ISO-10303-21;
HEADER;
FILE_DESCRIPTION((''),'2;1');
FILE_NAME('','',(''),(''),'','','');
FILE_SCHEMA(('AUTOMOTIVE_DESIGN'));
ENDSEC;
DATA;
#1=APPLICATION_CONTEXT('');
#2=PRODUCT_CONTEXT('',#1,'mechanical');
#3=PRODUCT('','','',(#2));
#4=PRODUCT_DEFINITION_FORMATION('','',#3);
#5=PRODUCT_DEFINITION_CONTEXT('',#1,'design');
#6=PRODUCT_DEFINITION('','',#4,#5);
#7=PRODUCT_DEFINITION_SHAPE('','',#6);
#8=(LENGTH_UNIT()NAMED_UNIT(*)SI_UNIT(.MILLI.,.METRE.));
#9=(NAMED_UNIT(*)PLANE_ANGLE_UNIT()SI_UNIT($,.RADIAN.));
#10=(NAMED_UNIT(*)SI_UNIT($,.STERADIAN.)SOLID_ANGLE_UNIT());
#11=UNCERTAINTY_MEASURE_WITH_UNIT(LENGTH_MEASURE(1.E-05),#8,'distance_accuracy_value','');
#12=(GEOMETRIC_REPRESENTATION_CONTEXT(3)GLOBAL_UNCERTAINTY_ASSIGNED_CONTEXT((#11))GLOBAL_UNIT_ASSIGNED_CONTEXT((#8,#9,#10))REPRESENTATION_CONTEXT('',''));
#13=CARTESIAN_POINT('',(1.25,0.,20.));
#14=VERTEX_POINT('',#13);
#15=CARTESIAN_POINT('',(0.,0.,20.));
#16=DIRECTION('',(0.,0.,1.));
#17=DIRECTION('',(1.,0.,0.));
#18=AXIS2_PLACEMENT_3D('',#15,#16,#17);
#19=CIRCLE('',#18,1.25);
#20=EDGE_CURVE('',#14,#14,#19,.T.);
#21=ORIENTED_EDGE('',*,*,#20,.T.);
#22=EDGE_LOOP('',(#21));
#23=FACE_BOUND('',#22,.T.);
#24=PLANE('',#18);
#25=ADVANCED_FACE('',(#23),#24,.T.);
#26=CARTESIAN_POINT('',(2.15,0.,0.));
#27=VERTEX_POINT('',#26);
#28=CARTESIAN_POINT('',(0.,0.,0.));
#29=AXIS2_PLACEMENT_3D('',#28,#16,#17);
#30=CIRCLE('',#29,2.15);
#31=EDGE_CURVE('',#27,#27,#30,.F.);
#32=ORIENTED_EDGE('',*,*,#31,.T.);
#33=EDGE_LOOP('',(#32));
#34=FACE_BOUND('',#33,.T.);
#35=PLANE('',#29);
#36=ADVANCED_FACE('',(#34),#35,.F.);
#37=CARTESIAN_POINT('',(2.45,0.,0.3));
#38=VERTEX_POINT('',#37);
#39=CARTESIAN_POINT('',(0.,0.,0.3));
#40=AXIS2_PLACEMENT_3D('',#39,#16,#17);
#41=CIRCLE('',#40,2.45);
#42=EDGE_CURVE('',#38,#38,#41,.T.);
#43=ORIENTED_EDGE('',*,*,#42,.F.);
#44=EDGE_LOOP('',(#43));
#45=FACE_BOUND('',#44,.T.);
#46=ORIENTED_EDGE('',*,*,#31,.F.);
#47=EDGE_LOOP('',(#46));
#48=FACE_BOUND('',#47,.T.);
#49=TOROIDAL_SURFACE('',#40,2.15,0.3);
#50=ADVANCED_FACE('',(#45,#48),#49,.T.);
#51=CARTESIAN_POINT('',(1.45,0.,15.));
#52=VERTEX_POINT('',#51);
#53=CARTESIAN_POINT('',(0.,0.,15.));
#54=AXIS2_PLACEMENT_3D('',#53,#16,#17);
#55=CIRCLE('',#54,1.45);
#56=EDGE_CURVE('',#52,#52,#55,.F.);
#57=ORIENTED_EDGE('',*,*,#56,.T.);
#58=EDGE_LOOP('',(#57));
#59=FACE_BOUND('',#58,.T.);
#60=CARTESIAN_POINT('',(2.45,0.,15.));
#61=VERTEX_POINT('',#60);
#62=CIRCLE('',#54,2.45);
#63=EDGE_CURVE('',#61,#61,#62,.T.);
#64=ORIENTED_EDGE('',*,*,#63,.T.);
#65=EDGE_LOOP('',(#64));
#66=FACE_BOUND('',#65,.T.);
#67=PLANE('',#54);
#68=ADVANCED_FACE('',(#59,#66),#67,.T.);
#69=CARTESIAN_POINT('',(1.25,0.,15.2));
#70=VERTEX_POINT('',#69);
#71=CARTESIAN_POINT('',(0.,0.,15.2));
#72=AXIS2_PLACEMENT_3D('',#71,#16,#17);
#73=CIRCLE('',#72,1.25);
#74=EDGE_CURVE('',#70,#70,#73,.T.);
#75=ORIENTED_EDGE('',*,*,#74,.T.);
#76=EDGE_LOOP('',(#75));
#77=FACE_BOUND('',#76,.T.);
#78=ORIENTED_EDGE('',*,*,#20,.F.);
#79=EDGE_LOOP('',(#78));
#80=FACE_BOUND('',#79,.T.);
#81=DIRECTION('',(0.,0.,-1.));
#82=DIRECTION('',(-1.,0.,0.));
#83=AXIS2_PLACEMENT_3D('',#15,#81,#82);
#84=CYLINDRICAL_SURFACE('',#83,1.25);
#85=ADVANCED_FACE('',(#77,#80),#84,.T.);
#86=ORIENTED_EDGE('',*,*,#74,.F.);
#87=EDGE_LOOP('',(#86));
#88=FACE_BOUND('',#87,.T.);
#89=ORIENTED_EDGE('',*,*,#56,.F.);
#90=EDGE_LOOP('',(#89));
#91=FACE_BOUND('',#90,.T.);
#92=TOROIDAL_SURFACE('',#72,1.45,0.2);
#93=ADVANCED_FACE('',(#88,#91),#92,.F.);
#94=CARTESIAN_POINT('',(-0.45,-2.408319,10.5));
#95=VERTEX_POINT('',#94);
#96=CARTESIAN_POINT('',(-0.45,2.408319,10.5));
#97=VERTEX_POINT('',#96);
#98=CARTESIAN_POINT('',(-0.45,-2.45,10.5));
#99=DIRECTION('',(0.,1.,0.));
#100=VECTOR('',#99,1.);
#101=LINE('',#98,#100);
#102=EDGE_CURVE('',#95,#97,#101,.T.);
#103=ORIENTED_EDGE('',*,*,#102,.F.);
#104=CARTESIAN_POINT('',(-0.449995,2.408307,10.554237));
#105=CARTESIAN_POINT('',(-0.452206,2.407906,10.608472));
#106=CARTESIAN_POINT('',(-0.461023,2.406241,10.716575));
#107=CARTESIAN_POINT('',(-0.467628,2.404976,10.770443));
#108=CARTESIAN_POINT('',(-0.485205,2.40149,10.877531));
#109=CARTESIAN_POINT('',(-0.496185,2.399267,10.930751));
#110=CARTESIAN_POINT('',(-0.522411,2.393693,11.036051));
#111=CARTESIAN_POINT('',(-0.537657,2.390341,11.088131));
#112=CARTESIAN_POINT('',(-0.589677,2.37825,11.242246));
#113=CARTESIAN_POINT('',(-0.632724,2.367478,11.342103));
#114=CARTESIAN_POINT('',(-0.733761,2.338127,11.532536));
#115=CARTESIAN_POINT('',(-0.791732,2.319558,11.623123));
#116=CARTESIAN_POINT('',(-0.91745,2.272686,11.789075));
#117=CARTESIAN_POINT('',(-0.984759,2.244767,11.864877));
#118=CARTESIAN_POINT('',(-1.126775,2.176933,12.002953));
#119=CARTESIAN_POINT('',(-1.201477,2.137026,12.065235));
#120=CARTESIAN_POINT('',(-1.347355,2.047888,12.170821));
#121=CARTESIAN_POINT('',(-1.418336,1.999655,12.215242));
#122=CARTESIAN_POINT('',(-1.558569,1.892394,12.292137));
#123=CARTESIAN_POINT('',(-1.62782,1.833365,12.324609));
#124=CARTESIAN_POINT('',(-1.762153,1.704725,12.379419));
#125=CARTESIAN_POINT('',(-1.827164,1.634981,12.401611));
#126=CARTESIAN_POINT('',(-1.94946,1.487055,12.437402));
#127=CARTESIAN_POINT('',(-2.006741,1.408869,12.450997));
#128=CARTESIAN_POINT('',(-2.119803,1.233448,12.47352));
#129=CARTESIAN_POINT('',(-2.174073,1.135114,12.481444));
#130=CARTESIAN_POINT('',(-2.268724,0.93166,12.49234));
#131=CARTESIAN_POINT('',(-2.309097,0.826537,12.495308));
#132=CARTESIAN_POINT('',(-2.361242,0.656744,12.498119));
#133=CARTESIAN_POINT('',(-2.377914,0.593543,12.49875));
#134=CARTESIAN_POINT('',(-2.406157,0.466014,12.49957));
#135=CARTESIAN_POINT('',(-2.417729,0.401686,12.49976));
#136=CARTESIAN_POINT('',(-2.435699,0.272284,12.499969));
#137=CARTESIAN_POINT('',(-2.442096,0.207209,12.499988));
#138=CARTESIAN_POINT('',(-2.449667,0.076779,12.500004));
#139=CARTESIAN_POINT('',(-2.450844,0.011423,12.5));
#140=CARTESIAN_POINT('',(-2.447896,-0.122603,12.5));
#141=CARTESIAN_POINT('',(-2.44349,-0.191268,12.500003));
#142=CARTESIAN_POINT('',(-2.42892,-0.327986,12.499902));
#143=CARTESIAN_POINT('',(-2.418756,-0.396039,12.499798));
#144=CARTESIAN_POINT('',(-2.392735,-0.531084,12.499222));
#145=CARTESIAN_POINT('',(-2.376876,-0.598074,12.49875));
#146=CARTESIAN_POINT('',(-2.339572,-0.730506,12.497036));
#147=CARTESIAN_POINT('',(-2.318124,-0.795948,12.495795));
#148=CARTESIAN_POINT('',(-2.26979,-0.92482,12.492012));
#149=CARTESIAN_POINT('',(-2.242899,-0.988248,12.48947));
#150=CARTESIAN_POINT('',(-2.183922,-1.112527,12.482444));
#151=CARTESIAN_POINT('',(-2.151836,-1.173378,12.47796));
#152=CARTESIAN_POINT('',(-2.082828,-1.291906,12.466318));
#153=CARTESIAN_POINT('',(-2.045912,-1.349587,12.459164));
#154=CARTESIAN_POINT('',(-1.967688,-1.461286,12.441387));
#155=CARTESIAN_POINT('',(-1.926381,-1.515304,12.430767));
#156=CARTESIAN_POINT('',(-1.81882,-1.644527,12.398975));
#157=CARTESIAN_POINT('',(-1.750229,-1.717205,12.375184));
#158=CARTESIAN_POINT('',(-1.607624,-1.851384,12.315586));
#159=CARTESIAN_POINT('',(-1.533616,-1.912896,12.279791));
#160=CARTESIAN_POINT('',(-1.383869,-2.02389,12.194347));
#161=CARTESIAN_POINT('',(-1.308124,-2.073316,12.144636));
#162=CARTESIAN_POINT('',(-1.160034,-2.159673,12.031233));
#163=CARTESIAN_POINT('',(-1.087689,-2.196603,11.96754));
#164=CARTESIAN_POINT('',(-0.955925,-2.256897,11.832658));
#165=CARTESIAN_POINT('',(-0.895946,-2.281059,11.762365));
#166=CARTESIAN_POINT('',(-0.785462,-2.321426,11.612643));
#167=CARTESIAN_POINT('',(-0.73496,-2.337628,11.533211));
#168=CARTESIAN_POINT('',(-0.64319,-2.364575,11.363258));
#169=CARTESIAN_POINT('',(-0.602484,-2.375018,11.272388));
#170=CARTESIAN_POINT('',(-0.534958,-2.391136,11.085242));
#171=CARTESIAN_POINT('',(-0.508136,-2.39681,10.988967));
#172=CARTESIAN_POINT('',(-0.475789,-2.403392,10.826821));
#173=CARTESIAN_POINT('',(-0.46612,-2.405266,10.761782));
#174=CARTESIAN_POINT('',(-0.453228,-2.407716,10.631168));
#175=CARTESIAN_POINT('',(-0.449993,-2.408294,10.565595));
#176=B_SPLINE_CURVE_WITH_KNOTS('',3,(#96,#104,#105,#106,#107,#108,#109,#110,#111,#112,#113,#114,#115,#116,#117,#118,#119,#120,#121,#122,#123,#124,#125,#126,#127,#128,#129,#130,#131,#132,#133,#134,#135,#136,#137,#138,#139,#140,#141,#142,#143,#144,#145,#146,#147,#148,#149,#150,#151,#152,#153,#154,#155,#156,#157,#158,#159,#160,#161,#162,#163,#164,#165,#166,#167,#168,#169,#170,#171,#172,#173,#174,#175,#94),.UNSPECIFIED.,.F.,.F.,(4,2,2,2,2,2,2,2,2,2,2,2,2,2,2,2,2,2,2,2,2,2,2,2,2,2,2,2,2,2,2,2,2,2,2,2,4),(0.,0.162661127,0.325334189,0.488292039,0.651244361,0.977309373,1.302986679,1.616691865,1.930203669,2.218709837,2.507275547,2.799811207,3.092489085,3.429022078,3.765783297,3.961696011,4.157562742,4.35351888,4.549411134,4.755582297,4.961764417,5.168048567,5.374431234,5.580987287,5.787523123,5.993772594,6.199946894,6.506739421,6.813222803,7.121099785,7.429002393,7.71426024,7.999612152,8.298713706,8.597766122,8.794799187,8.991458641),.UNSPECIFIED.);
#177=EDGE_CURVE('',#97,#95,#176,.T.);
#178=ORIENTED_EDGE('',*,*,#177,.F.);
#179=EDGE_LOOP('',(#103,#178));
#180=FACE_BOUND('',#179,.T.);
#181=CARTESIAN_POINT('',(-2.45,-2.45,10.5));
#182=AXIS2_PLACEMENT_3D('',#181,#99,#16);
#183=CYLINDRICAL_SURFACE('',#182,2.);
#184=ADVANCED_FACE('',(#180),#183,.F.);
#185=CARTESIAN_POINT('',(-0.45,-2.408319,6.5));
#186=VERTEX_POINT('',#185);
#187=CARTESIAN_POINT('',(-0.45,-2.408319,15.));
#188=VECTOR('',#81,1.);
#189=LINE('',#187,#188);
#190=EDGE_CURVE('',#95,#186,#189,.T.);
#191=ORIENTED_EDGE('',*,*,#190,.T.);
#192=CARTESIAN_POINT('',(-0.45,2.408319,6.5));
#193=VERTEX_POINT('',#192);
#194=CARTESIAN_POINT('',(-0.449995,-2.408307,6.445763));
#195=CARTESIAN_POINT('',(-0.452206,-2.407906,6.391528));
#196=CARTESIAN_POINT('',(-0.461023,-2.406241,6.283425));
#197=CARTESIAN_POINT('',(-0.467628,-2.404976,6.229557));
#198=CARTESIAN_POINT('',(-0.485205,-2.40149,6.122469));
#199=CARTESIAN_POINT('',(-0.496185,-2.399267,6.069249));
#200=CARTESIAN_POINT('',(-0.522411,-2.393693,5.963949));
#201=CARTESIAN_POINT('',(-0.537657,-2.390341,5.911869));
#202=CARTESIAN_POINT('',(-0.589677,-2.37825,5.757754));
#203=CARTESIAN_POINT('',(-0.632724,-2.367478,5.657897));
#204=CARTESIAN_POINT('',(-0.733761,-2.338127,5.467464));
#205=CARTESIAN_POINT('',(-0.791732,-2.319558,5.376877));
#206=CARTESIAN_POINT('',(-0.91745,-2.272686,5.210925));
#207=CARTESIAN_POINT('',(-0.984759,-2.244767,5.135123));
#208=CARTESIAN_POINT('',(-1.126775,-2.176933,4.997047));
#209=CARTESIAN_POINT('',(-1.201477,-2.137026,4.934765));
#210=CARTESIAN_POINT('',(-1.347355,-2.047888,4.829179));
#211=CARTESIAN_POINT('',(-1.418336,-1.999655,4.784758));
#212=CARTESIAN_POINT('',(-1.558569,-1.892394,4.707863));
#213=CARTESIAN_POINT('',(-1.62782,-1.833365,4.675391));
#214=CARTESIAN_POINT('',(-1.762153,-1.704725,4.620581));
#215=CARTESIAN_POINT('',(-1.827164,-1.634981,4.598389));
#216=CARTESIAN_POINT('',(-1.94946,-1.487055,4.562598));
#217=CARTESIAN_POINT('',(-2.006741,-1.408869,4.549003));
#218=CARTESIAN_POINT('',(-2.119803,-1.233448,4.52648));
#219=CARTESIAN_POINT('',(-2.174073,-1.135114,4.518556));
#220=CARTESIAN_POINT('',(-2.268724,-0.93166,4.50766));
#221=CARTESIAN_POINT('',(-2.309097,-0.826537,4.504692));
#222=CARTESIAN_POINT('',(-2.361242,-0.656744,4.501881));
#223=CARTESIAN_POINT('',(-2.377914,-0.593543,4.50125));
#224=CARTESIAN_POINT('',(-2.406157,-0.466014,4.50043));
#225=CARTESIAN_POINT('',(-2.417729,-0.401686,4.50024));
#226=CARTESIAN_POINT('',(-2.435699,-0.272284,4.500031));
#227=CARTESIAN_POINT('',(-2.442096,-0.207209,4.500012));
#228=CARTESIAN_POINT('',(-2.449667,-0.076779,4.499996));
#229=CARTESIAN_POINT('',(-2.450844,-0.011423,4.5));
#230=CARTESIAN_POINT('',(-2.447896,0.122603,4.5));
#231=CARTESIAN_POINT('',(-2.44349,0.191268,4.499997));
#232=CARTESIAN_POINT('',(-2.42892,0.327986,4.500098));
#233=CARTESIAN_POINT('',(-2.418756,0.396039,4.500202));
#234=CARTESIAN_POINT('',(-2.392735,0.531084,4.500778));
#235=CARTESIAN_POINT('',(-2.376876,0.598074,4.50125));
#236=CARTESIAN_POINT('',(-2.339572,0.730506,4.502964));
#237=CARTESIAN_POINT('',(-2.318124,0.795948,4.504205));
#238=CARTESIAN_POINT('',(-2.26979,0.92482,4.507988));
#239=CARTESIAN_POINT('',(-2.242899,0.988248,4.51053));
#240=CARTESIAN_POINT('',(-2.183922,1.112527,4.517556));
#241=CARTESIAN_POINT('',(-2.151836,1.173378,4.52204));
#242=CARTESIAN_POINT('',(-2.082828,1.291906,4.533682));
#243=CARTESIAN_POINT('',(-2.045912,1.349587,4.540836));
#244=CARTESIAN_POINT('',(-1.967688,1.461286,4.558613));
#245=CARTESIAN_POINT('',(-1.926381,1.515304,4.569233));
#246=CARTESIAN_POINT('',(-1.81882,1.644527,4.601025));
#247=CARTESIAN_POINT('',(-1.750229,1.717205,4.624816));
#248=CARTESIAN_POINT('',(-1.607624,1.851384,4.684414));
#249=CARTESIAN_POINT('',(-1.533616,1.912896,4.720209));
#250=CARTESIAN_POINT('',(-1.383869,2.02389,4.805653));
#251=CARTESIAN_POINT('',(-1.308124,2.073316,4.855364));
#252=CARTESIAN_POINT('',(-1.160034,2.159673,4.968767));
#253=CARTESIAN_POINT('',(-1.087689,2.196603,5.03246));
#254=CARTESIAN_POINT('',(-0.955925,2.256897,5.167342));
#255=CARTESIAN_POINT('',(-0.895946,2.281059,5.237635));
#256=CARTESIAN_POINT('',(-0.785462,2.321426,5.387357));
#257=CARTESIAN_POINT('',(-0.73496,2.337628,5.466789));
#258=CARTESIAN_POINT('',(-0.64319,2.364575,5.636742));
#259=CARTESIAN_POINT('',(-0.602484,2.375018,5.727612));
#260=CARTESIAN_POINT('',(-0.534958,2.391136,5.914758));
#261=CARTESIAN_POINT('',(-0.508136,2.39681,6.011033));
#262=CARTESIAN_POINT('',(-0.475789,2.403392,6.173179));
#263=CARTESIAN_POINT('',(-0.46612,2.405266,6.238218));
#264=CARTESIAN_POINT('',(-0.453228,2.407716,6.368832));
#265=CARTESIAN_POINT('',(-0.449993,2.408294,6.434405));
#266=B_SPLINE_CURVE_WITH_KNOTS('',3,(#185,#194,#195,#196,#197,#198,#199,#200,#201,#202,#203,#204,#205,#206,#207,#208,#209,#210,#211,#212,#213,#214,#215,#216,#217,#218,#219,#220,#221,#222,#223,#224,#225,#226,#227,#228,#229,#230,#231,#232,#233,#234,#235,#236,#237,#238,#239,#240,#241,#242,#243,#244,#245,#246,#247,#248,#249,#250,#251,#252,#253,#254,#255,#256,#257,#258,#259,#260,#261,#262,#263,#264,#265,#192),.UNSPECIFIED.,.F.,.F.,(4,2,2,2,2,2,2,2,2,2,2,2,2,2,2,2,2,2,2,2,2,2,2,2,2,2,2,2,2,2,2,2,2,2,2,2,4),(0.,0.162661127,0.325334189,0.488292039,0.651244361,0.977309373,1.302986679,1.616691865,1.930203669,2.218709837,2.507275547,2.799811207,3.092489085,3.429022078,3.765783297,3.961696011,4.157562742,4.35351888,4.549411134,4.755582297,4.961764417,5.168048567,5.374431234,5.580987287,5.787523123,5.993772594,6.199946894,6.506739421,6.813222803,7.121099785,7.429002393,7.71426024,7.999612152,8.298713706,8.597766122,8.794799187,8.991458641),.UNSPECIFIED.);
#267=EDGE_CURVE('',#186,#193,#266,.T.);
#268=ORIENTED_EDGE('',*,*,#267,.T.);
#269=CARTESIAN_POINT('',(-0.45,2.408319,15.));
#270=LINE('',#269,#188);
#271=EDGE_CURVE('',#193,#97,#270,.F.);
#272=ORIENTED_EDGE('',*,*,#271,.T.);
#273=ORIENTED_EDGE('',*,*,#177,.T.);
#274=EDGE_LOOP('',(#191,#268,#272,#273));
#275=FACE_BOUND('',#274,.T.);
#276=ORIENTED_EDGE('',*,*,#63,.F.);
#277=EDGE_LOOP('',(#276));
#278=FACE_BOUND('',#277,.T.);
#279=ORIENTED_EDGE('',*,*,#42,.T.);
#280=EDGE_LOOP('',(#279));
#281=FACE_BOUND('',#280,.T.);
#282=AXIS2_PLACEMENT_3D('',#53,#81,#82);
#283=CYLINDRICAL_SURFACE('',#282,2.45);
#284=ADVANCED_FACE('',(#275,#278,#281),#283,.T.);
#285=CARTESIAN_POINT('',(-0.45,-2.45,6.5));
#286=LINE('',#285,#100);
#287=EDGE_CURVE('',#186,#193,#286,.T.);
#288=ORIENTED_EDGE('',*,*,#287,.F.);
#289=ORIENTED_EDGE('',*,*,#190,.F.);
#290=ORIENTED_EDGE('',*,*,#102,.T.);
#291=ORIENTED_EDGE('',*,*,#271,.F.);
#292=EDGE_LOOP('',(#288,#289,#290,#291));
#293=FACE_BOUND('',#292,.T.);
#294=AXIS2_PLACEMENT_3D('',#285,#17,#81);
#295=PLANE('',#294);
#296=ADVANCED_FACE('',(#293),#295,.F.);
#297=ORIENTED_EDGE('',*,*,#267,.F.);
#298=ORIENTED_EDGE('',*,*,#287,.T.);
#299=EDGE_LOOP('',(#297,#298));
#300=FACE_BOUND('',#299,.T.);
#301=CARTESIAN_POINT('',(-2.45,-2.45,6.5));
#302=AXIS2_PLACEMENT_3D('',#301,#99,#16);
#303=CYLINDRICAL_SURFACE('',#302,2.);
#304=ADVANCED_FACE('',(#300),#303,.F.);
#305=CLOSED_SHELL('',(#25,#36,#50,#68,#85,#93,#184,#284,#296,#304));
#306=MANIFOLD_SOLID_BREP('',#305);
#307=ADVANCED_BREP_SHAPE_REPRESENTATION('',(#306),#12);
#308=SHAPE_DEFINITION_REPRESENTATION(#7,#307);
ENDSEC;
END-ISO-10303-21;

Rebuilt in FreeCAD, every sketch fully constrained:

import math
import FreeCAD as App
import Part
import Sketcher
from FreeCAD import Vector


def edges_at(feature, points):
    """Names of the edges that pass closest to the given points."""
    edges = feature.Shape.Edges
    near = lambda p: min(range(len(edges)), key=lambda i: edges[i].distToShape(Part.Vertex(*p))[0])
    return sorted({f"Edge{near(p) + 1}" for p in points})

doc = App.newDocument("Part")
body = doc.addObject("PartDesign::Body", "Body")

sketch1 = body.newObject("Sketcher::SketchObject", "Sketch")
sketch1.AttachmentSupport = (doc.getObject("XY_Plane"), [""])
sketch1.MapMode = "FlatFace"
sketch1.addGeometry(Part.Circle(Vector(0, 0, 0), Vector(0, 0, 1), 2.5), False)
sketch1.addConstraint([
    Sketcher.Constraint("Coincident", 0, 3, -1, 1),
    Sketcher.Constraint("Diameter", 0, 4.9),
])
pad1 = body.newObject("PartDesign::Pad", "Pad")
pad1.Profile = sketch1
pad1.Length = 15

sketch2 = body.newObject("Sketcher::SketchObject", "Sketch001")
sketch2.AttachmentSupport = (doc.getObject("XZ_Plane"), [""])
sketch2.MapMode = "FlatFace"
sketch2.addGeometry([
    Part.LineSegment(Vector(-4.5, 6.5, 0), Vector(-4.5, 10.5, 0)),
    Part.ArcOfCircle(Part.Circle(Vector(-2.5, 10.5, 0), Vector(0, 0, 1), 2), math.radians(0), math.radians(180)),
    Part.LineSegment(Vector(-0.5, 10.5, 0), Vector(-0.5, 6.5, 0)),
    Part.ArcOfCircle(Part.Circle(Vector(-2.5, 6.5, 0), Vector(0, 0, 1), 2), math.radians(180), math.radians(360)),
], False)
sketch2.addConstraint([
    Sketcher.Constraint("Tangent", 0, 2, 1, 2),
    Sketcher.Constraint("Tangent", 1, 1, 2, 1),
    Sketcher.Constraint("Tangent", 2, 2, 3, 2),
    Sketcher.Constraint("Tangent", 3, 1, 0, 1),
    Sketcher.Constraint("Vertical", 0),
    Sketcher.Constraint("Vertical", 2),
    Sketcher.Constraint("Radius", 1, 2.0),
    Sketcher.Constraint("DistanceY", 0, 1, 0, 2, 4.0),
    Sketcher.Constraint("DistanceY", -1, 1, 1, 3, 10.5),
    Sketcher.Constraint("DistanceX", 1, 3, -1, 1, 2.45),
])
pocket1 = body.newObject("PartDesign::Pocket", "Pocket")
pocket1.Profile = sketch2
pocket1.Type = "ThroughAll"
pocket1.Midplane = True

sketch3 = body.newObject("Sketcher::SketchObject", "Sketch002")
sketch3.AttachmentSupport = (doc.getObject("XY_Plane"), [""])
sketch3.MapMode = "FlatFace"
sketch3.AttachmentOffset = App.Placement(Vector(0, 0, 15), App.Rotation())
sketch3.addGeometry(Part.Circle(Vector(0, 0, 0), Vector(0, 0, 1), 1.2), False)
sketch3.addConstraint([
    Sketcher.Constraint("Coincident", 0, 3, -1, 1),
    Sketcher.Constraint("Diameter", 0, 2.5),
])
pad2 = body.newObject("PartDesign::Pad", "Pad001")
pad2.Profile = sketch3
pad2.Length = 5
doc.recompute()

fillet = body.newObject("PartDesign::Fillet", "Fillet")
fillet.Base = (pad2, edges_at(pad2, [(-2.45, 0, 0)]))
fillet.Radius = 0.3
doc.recompute()

fillet2 = body.newObject("PartDesign::Fillet", "Fillet001")
fillet2.Base = (fillet, edges_at(fillet, [(-1.25, 0, 15)]))
fillet2.Radius = 0.2

doc.recompute()
